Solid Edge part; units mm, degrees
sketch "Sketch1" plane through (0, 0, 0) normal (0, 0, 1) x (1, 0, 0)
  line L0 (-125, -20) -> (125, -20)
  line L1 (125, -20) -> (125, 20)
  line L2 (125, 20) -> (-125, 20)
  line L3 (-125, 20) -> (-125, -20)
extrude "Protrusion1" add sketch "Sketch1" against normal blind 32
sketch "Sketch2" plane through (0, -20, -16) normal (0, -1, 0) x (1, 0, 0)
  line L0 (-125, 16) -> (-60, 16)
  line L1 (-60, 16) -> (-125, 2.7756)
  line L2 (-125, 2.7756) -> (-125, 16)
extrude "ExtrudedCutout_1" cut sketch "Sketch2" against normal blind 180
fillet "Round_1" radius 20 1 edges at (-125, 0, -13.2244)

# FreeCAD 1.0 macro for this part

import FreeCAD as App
import Part
import Sketcher

V = App.Vector
Q = App.Units.Quantity


def edges_at(feature, points):
    """Names of the edges that pass closest to the given points."""
    edges = feature.Shape.Edges
    near = lambda p: min(range(len(edges)), key=lambda i: edges[i].distToShape(Part.Vertex(*p))[0])
    return sorted({f"Edge{near(p) + 1}" for p in points})

doc = App.newDocument("Part")
body = doc.addObject("PartDesign::Body", "Body")

# Sketch on XY plane
sketch1 = doc.addObject("Sketcher::SketchObject", "Sketch")
body.addObject(sketch1)
sketch1.AttachmentSupport = (doc.XY_Plane, [""])
sketch1.MapMode = "FlatFace"
sketch1.addGeometry(Part.LineSegment(V(-125, 20, 0), V(-125, -20, 0)), False)
sketch1.addGeometry(Part.LineSegment(V(-125, -20, 0), V(125, -20, 0)), False)
sketch1.addGeometry(Part.LineSegment(V(125, -20, 0), V(125, 20, 0)), False)
sketch1.addGeometry(Part.LineSegment(V(125, 20, 0), V(-125, 20, 0)), False)
sketch1.addConstraint(Sketcher.Constraint("Coincident", 0, 2, 1, 1))
sketch1.addConstraint(Sketcher.Constraint("Coincident", 1, 2, 2, 1))
sketch1.addConstraint(Sketcher.Constraint("Coincident", 2, 2, 3, 1))
sketch1.addConstraint(Sketcher.Constraint("Coincident", 3, 2, 0, 1))
sketch1.addConstraint(Sketcher.Constraint("Vertical", 0))
sketch1.addConstraint(Sketcher.Constraint("Horizontal", 1))
sketch1.addConstraint(Sketcher.Constraint("Vertical", 2))
sketch1.addConstraint(Sketcher.Constraint("Horizontal", 3))
sketch1.addConstraint(Sketcher.Constraint("Symmetric", 0, 2, 2, 2, -1, 1))
sketch1.addConstraint(Sketcher.Constraint("DistanceX", 1, 1, 1, 2, 250.0))
sketch1.addConstraint(Sketcher.Constraint("DistanceY", 0, 2, 0, 1, 40.0))
pad1 = doc.addObject("PartDesign::Pad", "Pad")
body.addObject(pad1)
pad1.Profile = sketch1
pad1.Length = 32
pad1.Reversed = True

# Sketch on XZ plane
sketch2 = doc.addObject("Sketcher::SketchObject", "Sketch001")
body.addObject(sketch2)
sketch2.AttachmentSupport = (doc.XZ_Plane, [""])
sketch2.MapMode = "FlatFace"
sketch2.AttachmentOffset = App.Placement(V(0, 0, 20), App.Rotation())
sketch2.addGeometry(Part.LineSegment(V(-60, 0, 0), V(-125, 0, 0)), False)
sketch2.addGeometry(Part.LineSegment(V(-125, 0, 0), V(-125, -13, 0)), False)
sketch2.addGeometry(Part.LineSegment(V(-125, -13, 0), V(-60, 0, 0)), False)
sketch2.addConstraint(Sketcher.Constraint("Coincident", 0, 2, 1, 1))
sketch2.addConstraint(Sketcher.Constraint("Coincident", 1, 2, 2, 1))
sketch2.addConstraint(Sketcher.Constraint("Coincident", 2, 2, 0, 1))
sketch2.addConstraint(Sketcher.Constraint("Horizontal", 0))
sketch2.addConstraint(Sketcher.Constraint("Vertical", 1))
sketch2.addConstraint(Sketcher.Constraint("PointOnObject", 0, 2, -1))
sketch2.addConstraint(Sketcher.Constraint("DistanceX", 0, 2, 0, 1, 65.0))
sketch2.addConstraint(Sketcher.Constraint("DistanceX", 0, 2, -1, 1, 125.0))
sketch2.addConstraint(Sketcher.Constraint("Angle", 2, Q("11.5 deg")))
pocket1 = doc.addObject("PartDesign::Pocket", "Pocket")
body.addObject(pocket1)
pocket1.Profile = sketch2
pocket1.Length = 180
doc.recompute()

fillet = doc.addObject("PartDesign::Fillet", "Fillet")
body.addObject(fillet)
fillet.Base = (pocket1, edges_at(pocket1, [(-125, 0, -13.224)]))
fillet.Radius = 20

doc.recompute()
